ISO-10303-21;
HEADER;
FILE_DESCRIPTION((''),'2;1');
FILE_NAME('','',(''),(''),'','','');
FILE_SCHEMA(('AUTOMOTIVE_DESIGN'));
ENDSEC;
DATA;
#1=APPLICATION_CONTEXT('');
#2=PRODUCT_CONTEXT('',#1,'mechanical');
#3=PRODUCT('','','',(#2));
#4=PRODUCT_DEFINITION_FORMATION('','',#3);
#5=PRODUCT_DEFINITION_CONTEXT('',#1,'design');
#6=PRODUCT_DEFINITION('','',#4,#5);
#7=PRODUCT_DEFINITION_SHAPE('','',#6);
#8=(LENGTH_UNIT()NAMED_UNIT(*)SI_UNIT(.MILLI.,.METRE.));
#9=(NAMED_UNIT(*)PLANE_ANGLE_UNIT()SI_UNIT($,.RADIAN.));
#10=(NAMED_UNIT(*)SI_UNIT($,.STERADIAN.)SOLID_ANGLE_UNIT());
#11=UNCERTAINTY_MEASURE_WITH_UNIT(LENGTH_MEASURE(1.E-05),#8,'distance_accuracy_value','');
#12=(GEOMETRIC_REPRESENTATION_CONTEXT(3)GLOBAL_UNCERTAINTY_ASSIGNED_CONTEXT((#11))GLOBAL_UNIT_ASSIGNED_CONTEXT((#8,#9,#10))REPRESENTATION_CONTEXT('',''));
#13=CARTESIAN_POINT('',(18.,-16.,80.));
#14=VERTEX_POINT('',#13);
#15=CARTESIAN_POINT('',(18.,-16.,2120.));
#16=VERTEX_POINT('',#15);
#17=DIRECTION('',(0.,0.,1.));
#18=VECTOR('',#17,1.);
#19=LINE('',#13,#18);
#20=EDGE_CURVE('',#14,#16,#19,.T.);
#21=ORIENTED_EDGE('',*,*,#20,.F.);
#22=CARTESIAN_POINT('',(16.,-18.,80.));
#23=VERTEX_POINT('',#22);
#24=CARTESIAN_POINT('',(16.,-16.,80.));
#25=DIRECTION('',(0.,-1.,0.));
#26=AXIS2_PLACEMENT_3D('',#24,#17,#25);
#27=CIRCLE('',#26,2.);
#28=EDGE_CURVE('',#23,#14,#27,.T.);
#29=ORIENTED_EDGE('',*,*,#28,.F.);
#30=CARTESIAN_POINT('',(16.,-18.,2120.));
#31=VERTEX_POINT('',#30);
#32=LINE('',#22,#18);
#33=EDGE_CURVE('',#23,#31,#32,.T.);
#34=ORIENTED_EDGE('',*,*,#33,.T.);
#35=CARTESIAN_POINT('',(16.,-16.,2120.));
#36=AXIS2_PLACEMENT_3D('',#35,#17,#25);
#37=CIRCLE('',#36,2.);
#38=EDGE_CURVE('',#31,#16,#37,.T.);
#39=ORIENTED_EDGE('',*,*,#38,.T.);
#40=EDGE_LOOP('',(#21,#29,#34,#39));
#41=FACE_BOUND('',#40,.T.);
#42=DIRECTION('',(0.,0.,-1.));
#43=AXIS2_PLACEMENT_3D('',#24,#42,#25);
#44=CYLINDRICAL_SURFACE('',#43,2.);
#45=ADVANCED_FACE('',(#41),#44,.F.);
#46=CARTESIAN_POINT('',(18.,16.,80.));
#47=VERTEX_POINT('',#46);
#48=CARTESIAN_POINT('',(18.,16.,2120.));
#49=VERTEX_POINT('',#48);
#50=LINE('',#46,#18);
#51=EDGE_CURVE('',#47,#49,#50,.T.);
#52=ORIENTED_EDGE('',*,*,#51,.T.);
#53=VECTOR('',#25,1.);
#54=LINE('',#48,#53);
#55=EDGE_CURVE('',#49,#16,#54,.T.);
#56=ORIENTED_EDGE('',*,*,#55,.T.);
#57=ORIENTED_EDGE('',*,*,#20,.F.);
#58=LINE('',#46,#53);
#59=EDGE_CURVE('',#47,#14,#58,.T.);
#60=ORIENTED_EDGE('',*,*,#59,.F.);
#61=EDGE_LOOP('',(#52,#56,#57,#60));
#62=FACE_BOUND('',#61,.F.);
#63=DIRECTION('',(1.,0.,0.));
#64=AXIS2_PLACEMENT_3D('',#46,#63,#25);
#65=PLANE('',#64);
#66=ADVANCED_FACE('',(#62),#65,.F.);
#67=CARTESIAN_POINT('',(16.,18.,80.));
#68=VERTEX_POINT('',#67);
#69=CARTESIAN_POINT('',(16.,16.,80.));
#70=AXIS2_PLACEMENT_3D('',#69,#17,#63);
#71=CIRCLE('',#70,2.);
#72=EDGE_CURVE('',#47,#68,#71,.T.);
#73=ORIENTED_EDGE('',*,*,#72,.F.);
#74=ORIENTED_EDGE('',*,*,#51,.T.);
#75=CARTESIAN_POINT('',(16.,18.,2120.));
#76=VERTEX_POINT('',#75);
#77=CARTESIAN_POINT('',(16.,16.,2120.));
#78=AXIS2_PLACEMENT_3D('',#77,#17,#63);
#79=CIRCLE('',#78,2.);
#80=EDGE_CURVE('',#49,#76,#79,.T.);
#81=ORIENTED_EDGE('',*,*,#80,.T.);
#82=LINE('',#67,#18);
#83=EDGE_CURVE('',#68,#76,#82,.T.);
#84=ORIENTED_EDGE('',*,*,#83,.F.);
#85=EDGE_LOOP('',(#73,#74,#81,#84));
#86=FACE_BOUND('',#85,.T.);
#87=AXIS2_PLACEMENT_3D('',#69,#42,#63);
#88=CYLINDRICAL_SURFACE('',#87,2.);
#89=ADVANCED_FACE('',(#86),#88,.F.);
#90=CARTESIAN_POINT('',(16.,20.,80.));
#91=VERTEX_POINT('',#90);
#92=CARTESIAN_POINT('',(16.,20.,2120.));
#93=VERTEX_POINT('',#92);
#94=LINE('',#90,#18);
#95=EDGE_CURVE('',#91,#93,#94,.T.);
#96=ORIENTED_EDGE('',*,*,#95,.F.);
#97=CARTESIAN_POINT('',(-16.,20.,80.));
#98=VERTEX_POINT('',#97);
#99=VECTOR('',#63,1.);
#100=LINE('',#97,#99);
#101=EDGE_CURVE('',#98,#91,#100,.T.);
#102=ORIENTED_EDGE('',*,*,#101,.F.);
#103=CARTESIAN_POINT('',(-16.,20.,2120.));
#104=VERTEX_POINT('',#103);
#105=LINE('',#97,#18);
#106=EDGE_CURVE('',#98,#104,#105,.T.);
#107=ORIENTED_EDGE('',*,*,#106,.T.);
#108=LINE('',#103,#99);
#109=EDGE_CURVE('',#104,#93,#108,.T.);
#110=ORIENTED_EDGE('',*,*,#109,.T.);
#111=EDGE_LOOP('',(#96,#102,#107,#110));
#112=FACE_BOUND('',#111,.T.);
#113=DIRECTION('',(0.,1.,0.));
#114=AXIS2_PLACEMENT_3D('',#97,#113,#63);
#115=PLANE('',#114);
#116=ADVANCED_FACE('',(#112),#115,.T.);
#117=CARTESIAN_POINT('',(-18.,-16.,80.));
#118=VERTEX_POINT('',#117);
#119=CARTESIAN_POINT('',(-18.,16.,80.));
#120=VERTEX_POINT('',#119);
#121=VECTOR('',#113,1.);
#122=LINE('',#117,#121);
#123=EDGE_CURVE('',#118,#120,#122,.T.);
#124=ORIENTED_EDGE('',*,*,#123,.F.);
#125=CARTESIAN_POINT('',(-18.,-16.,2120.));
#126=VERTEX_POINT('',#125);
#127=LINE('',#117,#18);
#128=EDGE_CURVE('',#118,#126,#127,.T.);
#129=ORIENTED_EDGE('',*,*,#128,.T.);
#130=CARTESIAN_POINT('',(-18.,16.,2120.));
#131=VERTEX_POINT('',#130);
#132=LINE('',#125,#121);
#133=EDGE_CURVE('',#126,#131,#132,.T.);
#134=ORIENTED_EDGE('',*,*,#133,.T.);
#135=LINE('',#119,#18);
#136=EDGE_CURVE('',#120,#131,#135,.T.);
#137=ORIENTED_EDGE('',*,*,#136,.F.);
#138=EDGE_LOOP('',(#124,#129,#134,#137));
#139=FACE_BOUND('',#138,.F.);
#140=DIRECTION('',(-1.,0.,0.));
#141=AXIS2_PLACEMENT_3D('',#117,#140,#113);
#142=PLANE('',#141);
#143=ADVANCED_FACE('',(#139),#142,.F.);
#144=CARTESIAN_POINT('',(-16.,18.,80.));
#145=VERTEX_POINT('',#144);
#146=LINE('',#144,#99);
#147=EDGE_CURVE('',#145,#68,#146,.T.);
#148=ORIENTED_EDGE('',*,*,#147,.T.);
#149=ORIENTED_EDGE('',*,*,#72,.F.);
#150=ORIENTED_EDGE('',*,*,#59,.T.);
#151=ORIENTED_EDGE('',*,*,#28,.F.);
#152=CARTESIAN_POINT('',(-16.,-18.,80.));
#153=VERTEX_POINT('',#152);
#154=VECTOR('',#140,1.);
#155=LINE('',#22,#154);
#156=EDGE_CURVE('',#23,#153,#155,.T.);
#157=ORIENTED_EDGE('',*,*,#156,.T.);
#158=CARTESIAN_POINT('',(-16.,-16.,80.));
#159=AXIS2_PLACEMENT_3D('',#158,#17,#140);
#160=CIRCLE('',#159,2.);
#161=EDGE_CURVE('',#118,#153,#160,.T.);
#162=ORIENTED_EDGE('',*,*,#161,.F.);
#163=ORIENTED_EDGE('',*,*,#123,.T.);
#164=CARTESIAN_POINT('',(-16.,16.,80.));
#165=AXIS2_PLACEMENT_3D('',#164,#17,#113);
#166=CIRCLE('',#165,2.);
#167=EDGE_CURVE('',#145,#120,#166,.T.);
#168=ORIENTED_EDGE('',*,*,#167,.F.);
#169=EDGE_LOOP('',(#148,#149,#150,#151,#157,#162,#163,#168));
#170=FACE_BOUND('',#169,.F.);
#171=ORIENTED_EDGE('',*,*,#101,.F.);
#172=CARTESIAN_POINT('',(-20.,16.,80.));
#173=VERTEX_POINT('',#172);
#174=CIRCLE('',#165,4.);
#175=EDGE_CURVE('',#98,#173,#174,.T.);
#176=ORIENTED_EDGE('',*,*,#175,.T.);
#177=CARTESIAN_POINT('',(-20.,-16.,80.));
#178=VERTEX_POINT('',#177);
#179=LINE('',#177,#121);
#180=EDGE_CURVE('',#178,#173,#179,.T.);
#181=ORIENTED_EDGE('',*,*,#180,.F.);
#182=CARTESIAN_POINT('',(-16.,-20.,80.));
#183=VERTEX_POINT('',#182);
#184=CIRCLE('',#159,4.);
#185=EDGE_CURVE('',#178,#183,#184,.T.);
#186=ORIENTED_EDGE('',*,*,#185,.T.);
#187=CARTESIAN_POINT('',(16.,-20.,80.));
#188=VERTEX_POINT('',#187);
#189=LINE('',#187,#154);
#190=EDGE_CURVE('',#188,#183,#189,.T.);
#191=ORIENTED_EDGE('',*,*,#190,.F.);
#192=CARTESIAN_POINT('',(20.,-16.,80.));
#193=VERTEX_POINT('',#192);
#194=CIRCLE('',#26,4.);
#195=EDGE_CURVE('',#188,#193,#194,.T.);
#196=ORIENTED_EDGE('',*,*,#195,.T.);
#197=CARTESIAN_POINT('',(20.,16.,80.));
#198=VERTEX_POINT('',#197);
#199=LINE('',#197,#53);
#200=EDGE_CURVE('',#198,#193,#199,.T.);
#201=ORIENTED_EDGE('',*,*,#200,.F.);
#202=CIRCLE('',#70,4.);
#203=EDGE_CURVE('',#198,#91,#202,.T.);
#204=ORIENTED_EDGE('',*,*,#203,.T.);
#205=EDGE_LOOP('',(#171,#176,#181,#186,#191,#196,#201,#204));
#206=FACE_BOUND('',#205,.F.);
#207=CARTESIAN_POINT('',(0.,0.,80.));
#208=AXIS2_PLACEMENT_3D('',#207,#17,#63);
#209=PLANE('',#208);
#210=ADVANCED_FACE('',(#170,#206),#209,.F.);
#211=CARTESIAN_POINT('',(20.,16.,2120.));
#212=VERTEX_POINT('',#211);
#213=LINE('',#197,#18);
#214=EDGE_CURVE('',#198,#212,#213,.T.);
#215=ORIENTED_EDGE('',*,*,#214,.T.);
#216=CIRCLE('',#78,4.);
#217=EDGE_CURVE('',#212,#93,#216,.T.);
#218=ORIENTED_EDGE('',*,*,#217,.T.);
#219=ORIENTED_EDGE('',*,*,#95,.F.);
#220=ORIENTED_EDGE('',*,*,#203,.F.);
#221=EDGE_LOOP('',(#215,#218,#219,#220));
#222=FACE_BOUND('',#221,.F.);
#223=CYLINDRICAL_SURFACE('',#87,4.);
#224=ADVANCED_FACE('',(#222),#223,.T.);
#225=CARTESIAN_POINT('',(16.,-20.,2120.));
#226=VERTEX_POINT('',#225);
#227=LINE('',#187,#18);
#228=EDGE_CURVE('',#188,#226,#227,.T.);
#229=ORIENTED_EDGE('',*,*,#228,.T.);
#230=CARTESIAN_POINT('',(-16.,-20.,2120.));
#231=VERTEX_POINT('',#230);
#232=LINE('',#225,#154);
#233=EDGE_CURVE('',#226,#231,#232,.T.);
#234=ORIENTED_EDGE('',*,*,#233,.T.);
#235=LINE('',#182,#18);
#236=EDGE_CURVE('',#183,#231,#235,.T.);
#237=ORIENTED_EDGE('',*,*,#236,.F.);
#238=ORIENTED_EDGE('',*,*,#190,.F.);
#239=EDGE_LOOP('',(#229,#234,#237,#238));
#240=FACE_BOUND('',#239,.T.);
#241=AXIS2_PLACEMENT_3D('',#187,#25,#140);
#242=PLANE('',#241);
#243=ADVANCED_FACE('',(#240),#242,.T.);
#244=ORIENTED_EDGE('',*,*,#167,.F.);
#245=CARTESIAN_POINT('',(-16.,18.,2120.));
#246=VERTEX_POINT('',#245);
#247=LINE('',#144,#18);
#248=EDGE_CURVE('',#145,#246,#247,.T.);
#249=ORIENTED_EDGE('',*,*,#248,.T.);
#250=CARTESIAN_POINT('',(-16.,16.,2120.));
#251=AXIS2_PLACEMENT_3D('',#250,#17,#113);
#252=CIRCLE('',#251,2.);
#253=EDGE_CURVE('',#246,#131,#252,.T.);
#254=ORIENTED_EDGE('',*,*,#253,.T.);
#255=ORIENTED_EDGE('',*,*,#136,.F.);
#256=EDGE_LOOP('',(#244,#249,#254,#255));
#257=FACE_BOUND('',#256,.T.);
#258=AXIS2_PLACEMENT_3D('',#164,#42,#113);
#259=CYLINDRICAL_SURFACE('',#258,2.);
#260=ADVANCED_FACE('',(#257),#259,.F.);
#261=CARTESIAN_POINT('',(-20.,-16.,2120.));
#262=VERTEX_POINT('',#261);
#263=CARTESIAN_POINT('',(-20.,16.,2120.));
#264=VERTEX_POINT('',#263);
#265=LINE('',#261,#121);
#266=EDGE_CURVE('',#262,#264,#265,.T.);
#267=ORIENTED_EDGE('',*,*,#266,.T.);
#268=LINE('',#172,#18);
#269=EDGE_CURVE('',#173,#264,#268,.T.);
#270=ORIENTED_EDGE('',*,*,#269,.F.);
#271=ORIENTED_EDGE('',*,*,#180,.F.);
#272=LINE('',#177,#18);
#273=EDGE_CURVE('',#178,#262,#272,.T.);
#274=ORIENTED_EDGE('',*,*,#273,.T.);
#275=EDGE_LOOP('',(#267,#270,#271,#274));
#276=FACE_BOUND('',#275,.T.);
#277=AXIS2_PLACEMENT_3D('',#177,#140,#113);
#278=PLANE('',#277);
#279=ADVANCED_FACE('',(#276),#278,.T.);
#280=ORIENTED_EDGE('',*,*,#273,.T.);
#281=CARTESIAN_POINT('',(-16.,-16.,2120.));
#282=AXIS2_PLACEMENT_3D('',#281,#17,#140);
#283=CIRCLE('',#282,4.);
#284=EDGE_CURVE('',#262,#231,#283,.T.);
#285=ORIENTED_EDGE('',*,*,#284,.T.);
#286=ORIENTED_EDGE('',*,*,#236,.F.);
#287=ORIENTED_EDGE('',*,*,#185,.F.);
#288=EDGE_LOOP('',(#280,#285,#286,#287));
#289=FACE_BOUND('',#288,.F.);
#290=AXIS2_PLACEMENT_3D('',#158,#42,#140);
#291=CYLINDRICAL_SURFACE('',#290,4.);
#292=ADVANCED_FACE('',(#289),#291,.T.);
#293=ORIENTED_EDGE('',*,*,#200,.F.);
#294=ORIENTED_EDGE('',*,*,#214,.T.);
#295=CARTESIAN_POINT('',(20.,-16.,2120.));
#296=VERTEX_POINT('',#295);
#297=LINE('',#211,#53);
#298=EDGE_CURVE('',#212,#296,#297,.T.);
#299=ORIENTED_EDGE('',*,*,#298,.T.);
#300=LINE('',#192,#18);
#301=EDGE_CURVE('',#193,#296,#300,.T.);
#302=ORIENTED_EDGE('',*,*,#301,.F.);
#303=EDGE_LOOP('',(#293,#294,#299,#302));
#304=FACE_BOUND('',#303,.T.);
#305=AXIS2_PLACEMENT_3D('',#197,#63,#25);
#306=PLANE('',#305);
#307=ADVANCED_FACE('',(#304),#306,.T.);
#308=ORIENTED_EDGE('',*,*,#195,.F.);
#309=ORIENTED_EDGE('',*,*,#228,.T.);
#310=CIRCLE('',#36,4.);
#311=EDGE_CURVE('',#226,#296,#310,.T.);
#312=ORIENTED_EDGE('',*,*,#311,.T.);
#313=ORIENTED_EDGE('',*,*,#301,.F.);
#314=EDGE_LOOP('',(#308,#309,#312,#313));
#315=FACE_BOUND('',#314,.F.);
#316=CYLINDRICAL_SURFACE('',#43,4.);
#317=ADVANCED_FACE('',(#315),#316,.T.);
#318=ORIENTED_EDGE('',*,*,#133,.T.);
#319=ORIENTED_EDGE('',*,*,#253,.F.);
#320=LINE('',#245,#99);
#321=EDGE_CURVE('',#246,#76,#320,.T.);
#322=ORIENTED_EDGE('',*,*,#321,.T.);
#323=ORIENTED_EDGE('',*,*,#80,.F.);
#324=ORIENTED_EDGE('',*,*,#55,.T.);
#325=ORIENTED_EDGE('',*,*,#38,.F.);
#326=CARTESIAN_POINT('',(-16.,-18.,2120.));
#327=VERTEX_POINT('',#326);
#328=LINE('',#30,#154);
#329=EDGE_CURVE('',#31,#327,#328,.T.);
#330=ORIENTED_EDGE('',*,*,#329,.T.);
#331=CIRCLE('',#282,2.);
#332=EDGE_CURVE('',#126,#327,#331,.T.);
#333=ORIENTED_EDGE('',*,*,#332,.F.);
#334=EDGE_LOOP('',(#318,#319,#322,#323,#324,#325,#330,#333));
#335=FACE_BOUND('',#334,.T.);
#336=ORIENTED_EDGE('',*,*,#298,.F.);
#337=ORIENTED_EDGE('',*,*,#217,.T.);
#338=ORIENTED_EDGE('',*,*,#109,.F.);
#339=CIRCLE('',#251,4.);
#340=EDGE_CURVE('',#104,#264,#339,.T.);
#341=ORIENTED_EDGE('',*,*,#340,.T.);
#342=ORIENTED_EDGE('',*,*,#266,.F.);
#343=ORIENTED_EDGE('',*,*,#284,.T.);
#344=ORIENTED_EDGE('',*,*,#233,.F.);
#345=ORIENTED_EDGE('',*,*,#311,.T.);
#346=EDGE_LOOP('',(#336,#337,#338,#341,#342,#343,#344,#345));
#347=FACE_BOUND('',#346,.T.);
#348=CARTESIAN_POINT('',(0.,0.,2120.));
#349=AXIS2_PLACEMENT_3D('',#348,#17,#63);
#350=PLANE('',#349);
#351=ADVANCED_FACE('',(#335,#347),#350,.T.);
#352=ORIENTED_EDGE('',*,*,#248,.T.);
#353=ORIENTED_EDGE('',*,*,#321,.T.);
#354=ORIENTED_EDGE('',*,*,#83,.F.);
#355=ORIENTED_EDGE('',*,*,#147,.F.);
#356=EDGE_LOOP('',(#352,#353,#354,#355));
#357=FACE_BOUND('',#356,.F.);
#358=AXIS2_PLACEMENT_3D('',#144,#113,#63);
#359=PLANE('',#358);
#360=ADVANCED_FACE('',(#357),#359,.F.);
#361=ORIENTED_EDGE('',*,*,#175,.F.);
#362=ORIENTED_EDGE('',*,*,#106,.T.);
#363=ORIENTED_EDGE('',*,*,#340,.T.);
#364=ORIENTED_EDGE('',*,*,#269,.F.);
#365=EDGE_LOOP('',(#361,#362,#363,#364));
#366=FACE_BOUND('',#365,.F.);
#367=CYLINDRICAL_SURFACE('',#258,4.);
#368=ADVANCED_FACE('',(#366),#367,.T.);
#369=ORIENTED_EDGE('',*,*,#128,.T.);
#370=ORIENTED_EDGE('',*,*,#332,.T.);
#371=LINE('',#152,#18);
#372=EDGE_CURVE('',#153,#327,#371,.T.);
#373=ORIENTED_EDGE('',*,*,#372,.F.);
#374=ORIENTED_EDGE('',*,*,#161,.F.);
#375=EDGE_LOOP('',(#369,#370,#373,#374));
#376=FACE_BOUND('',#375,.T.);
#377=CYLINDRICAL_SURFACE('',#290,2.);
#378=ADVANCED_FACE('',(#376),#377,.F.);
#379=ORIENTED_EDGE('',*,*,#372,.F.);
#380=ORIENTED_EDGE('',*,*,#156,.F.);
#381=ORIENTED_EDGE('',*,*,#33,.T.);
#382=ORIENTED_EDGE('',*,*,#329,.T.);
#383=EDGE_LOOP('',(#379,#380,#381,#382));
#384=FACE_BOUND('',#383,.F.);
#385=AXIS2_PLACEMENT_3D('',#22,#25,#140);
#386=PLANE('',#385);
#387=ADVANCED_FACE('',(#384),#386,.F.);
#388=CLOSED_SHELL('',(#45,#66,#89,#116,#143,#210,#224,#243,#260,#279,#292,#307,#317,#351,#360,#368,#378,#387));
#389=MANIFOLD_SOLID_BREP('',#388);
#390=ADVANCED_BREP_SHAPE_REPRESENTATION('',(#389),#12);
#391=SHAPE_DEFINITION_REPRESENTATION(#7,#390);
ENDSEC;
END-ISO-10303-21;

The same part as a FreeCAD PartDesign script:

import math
import FreeCAD as App
import Part
import Sketcher

V = App.Vector
Q = App.Units.Quantity

doc = App.newDocument("Part")
body = doc.addObject("PartDesign::Body", "Body")

# Sketch on XY plane
sketch1 = doc.addObject("Sketcher::SketchObject", "Sketch")
body.addObject(sketch1)
sketch1.AttachmentSupport = (doc.XY_Plane, [""])
sketch1.MapMode = "FlatFace"
sketch1.AttachmentOffset = App.Placement(V(0, 0, 80), App.Rotation())
sketch1.addGeometry(Part.LineSegment(V(-20, 16, 0), V(-20, -16, 0)), False)
sketch1.addGeometry(Part.ArcOfCircle(Part.Circle(V(-16, -16, 0), V(0, 0, 1), 4), math.radians(180), math.radians(270)), False)
sketch1.addGeometry(Part.LineSegment(V(-16, -20, 0), V(16, -20, 0)), False)
sketch1.addGeometry(Part.ArcOfCircle(Part.Circle(V(16, -16, 0), V(0, 0, 1), 4), math.radians(-90), math.radians(0)), False)
sketch1.addGeometry(Part.LineSegment(V(20, -16, 0), V(20, 16, 0)), False)
sketch1.addGeometry(Part.ArcOfCircle(Part.Circle(V(16, 16, 0), V(0, 0, 1), 4), math.radians(0), math.radians(90)), False)
sketch1.addGeometry(Part.LineSegment(V(16, 20, 0), V(-16, 20, 0)), False)
sketch1.addGeometry(Part.ArcOfCircle(Part.Circle(V(-16, 16, 0), V(0, 0, 1), 4), math.radians(90), math.radians(180)), False)
sketch1.addGeometry(Part.ArcOfCircle(Part.Circle(V(-16, 16, 0), V(0, 0, 1), 2), math.radians(90), math.radians(180)), False)
sketch1.addGeometry(Part.LineSegment(V(-16, 18, 0), V(16, 18, 0)), False)
sketch1.addGeometry(Part.ArcOfCircle(Part.Circle(V(16, 16, 0), V(0, 0, 1), 2), math.radians(0), math.radians(90)), False)
sketch1.addGeometry(Part.LineSegment(V(18, 16, 0), V(18, -16, 0)), False)
sketch1.addGeometry(Part.ArcOfCircle(Part.Circle(V(16, -16, 0), V(0, 0, 1), 2), math.radians(-90), math.radians(0)), False)
sketch1.addGeometry(Part.LineSegment(V(16, -18, 0), V(-16, -18, 0)), False)
sketch1.addGeometry(Part.ArcOfCircle(Part.Circle(V(-16, -16, 0), V(0, 0, 1), 2), math.radians(180), math.radians(270)), False)
sketch1.addGeometry(Part.LineSegment(V(-18, -16, 0), V(-18, 16, 0)), False)
sketch1.addConstraint(Sketcher.Constraint("Tangent", 0, 2, 1, 1))
sketch1.addConstraint(Sketcher.Constraint("Tangent", 1, 2, 2, 1))
sketch1.addConstraint(Sketcher.Constraint("Tangent", 2, 2, 3, 1))
sketch1.addConstraint(Sketcher.Constraint("Tangent", 3, 2, 4, 1))
sketch1.addConstraint(Sketcher.Constraint("Tangent", 4, 2, 5, 1))
sketch1.addConstraint(Sketcher.Constraint("Tangent", 5, 2, 6, 1))
sketch1.addConstraint(Sketcher.Constraint("Tangent", 6, 2, 7, 1))
sketch1.addConstraint(Sketcher.Constraint("Tangent", 7, 2, 0, 1))
sketch1.addConstraint(Sketcher.Constraint("Tangent", 8, 1, 9, 1))
sketch1.addConstraint(Sketcher.Constraint("Tangent", 9, 2, 10, 2))
sketch1.addConstraint(Sketcher.Constraint("Tangent", 10, 1, 11, 1))
sketch1.addConstraint(Sketcher.Constraint("Tangent", 11, 2, 12, 2))
sketch1.addConstraint(Sketcher.Constraint("Tangent", 12, 1, 13, 1))
sketch1.addConstraint(Sketcher.Constraint("Tangent", 13, 2, 14, 2))
sketch1.addConstraint(Sketcher.Constraint("Tangent", 14, 1, 15, 1))
sketch1.addConstraint(Sketcher.Constraint("Tangent", 15, 2, 8, 2))
sketch1.addConstraint(Sketcher.Constraint("Vertical", 0))
sketch1.addConstraint(Sketcher.Constraint("Horizontal", 2))
sketch1.addConstraint(Sketcher.Constraint("Vertical", 4))
sketch1.addConstraint(Sketcher.Constraint("Horizontal", 6))
sketch1.addConstraint(Sketcher.Constraint("Horizontal", 9))
sketch1.addConstraint(Sketcher.Constraint("Vertical", 11))
sketch1.addConstraint(Sketcher.Constraint("Horizontal", 13))
sketch1.addConstraint(Sketcher.Constraint("Vertical", 15))
sketch1.addConstraint(Sketcher.Constraint("Coincident", 8, 3, 7, 3))
sketch1.addConstraint(Sketcher.Constraint("Coincident", 10, 3, 5, 3))
sketch1.addConstraint(Sketcher.Constraint("Coincident", 12, 3, 3, 3))
sketch1.addConstraint(Sketcher.Constraint("Equal", 1, 3))
sketch1.addConstraint(Sketcher.Constraint("Equal", 3, 5))
sketch1.addConstraint(Sketcher.Constraint("Equal", 5, 7))
sketch1.addConstraint(Sketcher.Constraint("Equal", 12, 14))
sketch1.addConstraint(Sketcher.Constraint("Symmetric", 1, 3, 5, 3, -1, 1))
sketch1.addConstraint(Sketcher.Constraint("Equal", 13, 0))
sketch1.addConstraint(Sketcher.Constraint("Radius", 1, Q("4 mm")))
sketch1.addConstraint(Sketcher.Constraint("Radius", 8, Q("2 mm")))
sketch1.addConstraint(Sketcher.Constraint("DistanceX", 0, 2, -1, 1, Q("20 mm")))
pad1 = doc.addObject("PartDesign::Pad", "Pad")
body.addObject(pad1)
pad1.Profile = sketch1
pad1.Length = 2040

doc.recompute()
